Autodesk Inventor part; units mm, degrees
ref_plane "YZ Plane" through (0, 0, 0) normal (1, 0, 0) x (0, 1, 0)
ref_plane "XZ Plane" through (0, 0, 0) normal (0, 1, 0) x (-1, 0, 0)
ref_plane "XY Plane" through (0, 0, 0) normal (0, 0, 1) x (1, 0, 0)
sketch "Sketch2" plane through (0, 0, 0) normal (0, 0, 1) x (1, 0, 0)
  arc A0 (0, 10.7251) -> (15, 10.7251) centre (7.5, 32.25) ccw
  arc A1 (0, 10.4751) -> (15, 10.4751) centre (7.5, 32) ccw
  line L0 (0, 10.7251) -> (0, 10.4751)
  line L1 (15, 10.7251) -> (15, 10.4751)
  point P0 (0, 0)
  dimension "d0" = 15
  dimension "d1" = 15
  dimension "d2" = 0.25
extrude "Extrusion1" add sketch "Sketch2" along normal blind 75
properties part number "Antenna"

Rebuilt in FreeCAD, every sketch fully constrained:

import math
import FreeCAD as App
import Part
import Sketcher
Q = App.Units.Quantity

doc = App.newDocument("Part")
body = doc.addObject("PartDesign::Body", "Body")

# Sketch on XY plane
sketch1 = doc.addObject("Sketcher::SketchObject", "Sketch")
body.addObject(sketch1)
sketch1.AttachmentSupport = (doc.XY_Plane, [""])
sketch1.MapMode = "FlatFace"
sketch1.addGeometry(Part.ArcOfCircle(Part.Circle(App.Vector(7.5, 32.25, 0), App.Vector(0, 0, 1), 22.79), math.radians(-109), math.radians(-71)), False)
sketch1.addGeometry(Part.LineSegment(App.Vector(0, 10.73, 0), App.Vector(0, 10.48, 0)), False)
sketch1.addGeometry(Part.ArcOfCircle(Part.Circle(App.Vector(7.5, 32, 0), App.Vector(0, 0, 1), 22.79), math.radians(-109), math.radians(-71)), False)
sketch1.addGeometry(Part.LineSegment(App.Vector(15, 10.48, 0), App.Vector(15, 10.73, 0)), False)
sketch1.addConstraint(Sketcher.Constraint("Coincident", 0, 1, 1, 1))
sketch1.addConstraint(Sketcher.Constraint("Coincident", 1, 2, 2, 1))
sketch1.addConstraint(Sketcher.Constraint("Coincident", 2, 2, 3, 1))
sketch1.addConstraint(Sketcher.Constraint("Coincident", 3, 2, 0, 2))
sketch1.addConstraint(Sketcher.Constraint("Vertical", 1))
sketch1.addConstraint(Sketcher.Constraint("Vertical", 3))
sketch1.addConstraint(Sketcher.Constraint("Equal", 0, 2))
sketch1.addConstraint(Sketcher.Constraint("PointOnObject", 0, 1, -2))
sketch1.addConstraint(Sketcher.Constraint("Horizontal", 1, 2, 2, 2))
sketch1.addConstraint(Sketcher.Constraint("Horizontal", 0, 1, 3, 2))
sketch1.addConstraint(Sketcher.Constraint("DistanceX", -1, 1, 2, 2, Q("15 mm")))
sketch1.addConstraint(Sketcher.Constraint("DistanceY", 1, 2, 1, 1, Q("0.25 mm")))
sketch1.addConstraint(Sketcher.Constraint("DistanceY", -1, 1, 2, 3, Q("32 mm")))
sketch1.addConstraint(Sketcher.Constraint("Radius", 0, Q("22.794 mm")))
pad1 = doc.addObject("PartDesign::Pad", "Pad")
body.addObject(pad1)
pad1.Profile = sketch1
pad1.Length = 75

doc.recompute()
